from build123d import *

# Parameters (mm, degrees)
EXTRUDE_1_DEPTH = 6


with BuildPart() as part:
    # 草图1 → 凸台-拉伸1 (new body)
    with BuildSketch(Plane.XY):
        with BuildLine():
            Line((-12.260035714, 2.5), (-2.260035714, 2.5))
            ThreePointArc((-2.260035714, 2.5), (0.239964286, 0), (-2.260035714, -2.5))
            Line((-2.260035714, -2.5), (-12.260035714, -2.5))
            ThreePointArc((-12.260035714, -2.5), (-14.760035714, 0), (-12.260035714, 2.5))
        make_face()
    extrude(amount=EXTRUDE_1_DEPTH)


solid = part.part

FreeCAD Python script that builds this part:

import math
import FreeCAD as App
import Part
import Sketcher

V = App.Vector

doc = App.newDocument("Part")
body = doc.addObject("PartDesign::Body", "Body")

sketch1 = body.newObject("Sketcher::SketchObject", "Sketch")
sketch1.AttachmentSupport = (doc.getObject("XY_Plane"), [""])
sketch1.MapMode = "FlatFace"
sketch1.addGeometry([
    Part.LineSegment(V(-2.3, 2.5, 0), V(-12.3, 2.5, 0)),
    Part.ArcOfCircle(Part.Circle(V(-12.3, 0, 0), V(0, 0, 1), 2.5), math.radians(90), math.radians(270)),
    Part.LineSegment(V(-12.3, -2.5, 0), V(-2.3, -2.5, 0)),
    Part.ArcOfCircle(Part.Circle(V(-2.3, 0, 0), V(0, 0, 1), 2.5), math.radians(-90), math.radians(90)),
], False)
sketch1.addConstraint([
    Sketcher.Constraint("Tangent", 0, 2, 1, 1),
    Sketcher.Constraint("Tangent", 1, 2, 2, 1),
    Sketcher.Constraint("Tangent", 2, 2, 3, 1),
    Sketcher.Constraint("Tangent", 3, 2, 0, 1),
    Sketcher.Constraint("Horizontal", 0),
    Sketcher.Constraint("Horizontal", 2),
    Sketcher.Constraint("PointOnObject", 1, 3, -1),
    Sketcher.Constraint("Radius", 1, 2.5),
    Sketcher.Constraint("DistanceX", 0, 2, 0, 1, 10.0),
    Sketcher.Constraint("DistanceX", 1, 3, -1, 1, 12.260036),
])
pad1 = body.newObject("PartDesign::Pad", "Pad")
pad1.Profile = sketch1
pad1.Length = 6

doc.recompute()
